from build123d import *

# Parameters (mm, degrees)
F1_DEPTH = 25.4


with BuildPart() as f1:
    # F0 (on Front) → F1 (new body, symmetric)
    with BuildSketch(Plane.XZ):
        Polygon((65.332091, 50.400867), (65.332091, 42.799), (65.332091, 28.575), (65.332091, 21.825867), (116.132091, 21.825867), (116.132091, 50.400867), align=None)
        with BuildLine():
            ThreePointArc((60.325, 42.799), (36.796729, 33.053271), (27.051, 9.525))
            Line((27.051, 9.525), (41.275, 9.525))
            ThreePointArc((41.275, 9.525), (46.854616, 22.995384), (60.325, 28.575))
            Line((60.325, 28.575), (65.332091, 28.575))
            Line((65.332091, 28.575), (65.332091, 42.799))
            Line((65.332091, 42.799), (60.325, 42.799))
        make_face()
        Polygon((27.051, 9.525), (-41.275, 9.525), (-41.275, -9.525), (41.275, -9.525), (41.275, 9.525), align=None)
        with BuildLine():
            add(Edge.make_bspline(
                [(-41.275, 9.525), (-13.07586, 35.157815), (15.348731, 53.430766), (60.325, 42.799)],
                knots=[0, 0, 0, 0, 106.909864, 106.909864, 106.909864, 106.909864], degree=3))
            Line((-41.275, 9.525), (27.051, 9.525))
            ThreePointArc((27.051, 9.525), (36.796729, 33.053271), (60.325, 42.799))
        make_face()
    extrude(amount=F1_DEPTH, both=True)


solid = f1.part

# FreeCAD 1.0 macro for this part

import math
import FreeCAD as App
import Part
import Sketcher

V = App.Vector
Q = App.Units.Quantity

doc = App.newDocument("Part")
body = doc.addObject("PartDesign::Body", "Body")

# Sketch on XZ plane
sketch1 = body.newObject("Sketcher::SketchObject", "Sketch")
sketch1.AttachmentSupport = (doc.getObject("XZ_Plane"), [""])
sketch1.MapMode = "FlatFace"
sketch1.addGeometry([
    Part.LineSegment(V(65.332091, 50.400867, 0), V(65.332091, 42.799, 0)),  # 0
    Part.LineSegment(V(65.332091, 42.799, 0), V(60.325, 42.799, 0)),  # 1
    Part.BSplineCurve([V(-41.275, 9.525, 0), V(-13.07586, 35.157815, 0), V(15.348731, 53.430766, 0), V(60.325, 42.799, 0)], [4, 4], [0, 106.909864], False, 3, [1, 1, 1, 1], False),  # 2
    Part.LineSegment(V(-41.275, 9.525, 0), V(-41.275, -9.525, 0)),  # 3
    Part.LineSegment(V(-41.275, -9.525, 0), V(41.275, -9.525, 0)),  # 4
    Part.LineSegment(V(41.275, -9.525, 0), V(41.275, 9.525, 0)),  # 5
    Part.ArcOfCircle(Part.Circle(V(60.325001, 9.524999, 0), V(0, 0, 1), 19.050001), math.radians(90.000002), math.radians(179.999998)),  # 6
    Part.LineSegment(V(60.325, 28.575, 0), V(65.332091, 28.575, 0)),  # 7
    Part.LineSegment(V(65.332091, 28.575, 0), V(65.332091, 21.825867, 0)),  # 8
    Part.LineSegment(V(65.332091, 21.825867, 0), V(116.132091, 21.825867, 0)),  # 9
    Part.LineSegment(V(116.132091, 21.825867, 0), V(116.132091, 50.400867, 0)),  # 10
    Part.LineSegment(V(116.132091, 50.400867, 0), V(65.332091, 50.400867, 0)),  # 11
], False)
sketch1.addConstraint([
    Sketcher.Constraint("Block", 2),
    Sketcher.Constraint("Coincident", 0, 2, 1, 1),
    Sketcher.Constraint("Coincident", 1, 2, 2, 2),
    Sketcher.Constraint("Coincident", 2, 1, 3, 1),
    Sketcher.Constraint("Coincident", 3, 2, 4, 1),
    Sketcher.Constraint("Coincident", 4, 2, 5, 1),
    Sketcher.Constraint("Tangent", 5, 2, 6, 2),
    Sketcher.Constraint("Tangent", 6, 1, 7, 1),
    Sketcher.Constraint("Coincident", 7, 2, 8, 1),
    Sketcher.Constraint("Coincident", 8, 2, 9, 1),
    Sketcher.Constraint("Coincident", 9, 2, 10, 1),
    Sketcher.Constraint("Coincident", 10, 2, 11, 1),
    Sketcher.Constraint("Coincident", 11, 2, 0, 1),
    Sketcher.Constraint("Vertical", 0),
    Sketcher.Constraint("Horizontal", 1),
    Sketcher.Constraint("Vertical", 3),
    Sketcher.Constraint("Horizontal", 4),
    Sketcher.Constraint("Vertical", 5),
    Sketcher.Constraint("Horizontal", 7),
    Sketcher.Constraint("Vertical", 8),
    Sketcher.Constraint("Horizontal", 9),
    Sketcher.Constraint("Vertical", 10),
    Sketcher.Constraint("Horizontal", 11),
    Sketcher.Constraint("Symmetric", 3, 2, 5, 2, -1, 1),
    Sketcher.Constraint("Vertical", 6, 3, 1, 2),
    Sketcher.Constraint("Vertical", 0, 2, 7, 2),
    Sketcher.Constraint("Equal", 3, 5),
    Sketcher.Constraint("DistanceX", 9, 1, 9, 2, Q("2 in")),
    Sketcher.Constraint("DistanceY", 10, 1, 10, 2, Q("1.125 in")),
    Sketcher.Constraint("DistanceX", 1, 2, 1, 1, Q("5.007091 mm")),
    Sketcher.Constraint("DistanceY", 0, 2, 0, 1, Q("7.601867 mm")),
])
pad1 = body.newObject("PartDesign::Pad", "Pad")
pad1.Profile = sketch1
pad1.Length = Q("2 in")
pad1.Midplane = True

doc.recompute()
